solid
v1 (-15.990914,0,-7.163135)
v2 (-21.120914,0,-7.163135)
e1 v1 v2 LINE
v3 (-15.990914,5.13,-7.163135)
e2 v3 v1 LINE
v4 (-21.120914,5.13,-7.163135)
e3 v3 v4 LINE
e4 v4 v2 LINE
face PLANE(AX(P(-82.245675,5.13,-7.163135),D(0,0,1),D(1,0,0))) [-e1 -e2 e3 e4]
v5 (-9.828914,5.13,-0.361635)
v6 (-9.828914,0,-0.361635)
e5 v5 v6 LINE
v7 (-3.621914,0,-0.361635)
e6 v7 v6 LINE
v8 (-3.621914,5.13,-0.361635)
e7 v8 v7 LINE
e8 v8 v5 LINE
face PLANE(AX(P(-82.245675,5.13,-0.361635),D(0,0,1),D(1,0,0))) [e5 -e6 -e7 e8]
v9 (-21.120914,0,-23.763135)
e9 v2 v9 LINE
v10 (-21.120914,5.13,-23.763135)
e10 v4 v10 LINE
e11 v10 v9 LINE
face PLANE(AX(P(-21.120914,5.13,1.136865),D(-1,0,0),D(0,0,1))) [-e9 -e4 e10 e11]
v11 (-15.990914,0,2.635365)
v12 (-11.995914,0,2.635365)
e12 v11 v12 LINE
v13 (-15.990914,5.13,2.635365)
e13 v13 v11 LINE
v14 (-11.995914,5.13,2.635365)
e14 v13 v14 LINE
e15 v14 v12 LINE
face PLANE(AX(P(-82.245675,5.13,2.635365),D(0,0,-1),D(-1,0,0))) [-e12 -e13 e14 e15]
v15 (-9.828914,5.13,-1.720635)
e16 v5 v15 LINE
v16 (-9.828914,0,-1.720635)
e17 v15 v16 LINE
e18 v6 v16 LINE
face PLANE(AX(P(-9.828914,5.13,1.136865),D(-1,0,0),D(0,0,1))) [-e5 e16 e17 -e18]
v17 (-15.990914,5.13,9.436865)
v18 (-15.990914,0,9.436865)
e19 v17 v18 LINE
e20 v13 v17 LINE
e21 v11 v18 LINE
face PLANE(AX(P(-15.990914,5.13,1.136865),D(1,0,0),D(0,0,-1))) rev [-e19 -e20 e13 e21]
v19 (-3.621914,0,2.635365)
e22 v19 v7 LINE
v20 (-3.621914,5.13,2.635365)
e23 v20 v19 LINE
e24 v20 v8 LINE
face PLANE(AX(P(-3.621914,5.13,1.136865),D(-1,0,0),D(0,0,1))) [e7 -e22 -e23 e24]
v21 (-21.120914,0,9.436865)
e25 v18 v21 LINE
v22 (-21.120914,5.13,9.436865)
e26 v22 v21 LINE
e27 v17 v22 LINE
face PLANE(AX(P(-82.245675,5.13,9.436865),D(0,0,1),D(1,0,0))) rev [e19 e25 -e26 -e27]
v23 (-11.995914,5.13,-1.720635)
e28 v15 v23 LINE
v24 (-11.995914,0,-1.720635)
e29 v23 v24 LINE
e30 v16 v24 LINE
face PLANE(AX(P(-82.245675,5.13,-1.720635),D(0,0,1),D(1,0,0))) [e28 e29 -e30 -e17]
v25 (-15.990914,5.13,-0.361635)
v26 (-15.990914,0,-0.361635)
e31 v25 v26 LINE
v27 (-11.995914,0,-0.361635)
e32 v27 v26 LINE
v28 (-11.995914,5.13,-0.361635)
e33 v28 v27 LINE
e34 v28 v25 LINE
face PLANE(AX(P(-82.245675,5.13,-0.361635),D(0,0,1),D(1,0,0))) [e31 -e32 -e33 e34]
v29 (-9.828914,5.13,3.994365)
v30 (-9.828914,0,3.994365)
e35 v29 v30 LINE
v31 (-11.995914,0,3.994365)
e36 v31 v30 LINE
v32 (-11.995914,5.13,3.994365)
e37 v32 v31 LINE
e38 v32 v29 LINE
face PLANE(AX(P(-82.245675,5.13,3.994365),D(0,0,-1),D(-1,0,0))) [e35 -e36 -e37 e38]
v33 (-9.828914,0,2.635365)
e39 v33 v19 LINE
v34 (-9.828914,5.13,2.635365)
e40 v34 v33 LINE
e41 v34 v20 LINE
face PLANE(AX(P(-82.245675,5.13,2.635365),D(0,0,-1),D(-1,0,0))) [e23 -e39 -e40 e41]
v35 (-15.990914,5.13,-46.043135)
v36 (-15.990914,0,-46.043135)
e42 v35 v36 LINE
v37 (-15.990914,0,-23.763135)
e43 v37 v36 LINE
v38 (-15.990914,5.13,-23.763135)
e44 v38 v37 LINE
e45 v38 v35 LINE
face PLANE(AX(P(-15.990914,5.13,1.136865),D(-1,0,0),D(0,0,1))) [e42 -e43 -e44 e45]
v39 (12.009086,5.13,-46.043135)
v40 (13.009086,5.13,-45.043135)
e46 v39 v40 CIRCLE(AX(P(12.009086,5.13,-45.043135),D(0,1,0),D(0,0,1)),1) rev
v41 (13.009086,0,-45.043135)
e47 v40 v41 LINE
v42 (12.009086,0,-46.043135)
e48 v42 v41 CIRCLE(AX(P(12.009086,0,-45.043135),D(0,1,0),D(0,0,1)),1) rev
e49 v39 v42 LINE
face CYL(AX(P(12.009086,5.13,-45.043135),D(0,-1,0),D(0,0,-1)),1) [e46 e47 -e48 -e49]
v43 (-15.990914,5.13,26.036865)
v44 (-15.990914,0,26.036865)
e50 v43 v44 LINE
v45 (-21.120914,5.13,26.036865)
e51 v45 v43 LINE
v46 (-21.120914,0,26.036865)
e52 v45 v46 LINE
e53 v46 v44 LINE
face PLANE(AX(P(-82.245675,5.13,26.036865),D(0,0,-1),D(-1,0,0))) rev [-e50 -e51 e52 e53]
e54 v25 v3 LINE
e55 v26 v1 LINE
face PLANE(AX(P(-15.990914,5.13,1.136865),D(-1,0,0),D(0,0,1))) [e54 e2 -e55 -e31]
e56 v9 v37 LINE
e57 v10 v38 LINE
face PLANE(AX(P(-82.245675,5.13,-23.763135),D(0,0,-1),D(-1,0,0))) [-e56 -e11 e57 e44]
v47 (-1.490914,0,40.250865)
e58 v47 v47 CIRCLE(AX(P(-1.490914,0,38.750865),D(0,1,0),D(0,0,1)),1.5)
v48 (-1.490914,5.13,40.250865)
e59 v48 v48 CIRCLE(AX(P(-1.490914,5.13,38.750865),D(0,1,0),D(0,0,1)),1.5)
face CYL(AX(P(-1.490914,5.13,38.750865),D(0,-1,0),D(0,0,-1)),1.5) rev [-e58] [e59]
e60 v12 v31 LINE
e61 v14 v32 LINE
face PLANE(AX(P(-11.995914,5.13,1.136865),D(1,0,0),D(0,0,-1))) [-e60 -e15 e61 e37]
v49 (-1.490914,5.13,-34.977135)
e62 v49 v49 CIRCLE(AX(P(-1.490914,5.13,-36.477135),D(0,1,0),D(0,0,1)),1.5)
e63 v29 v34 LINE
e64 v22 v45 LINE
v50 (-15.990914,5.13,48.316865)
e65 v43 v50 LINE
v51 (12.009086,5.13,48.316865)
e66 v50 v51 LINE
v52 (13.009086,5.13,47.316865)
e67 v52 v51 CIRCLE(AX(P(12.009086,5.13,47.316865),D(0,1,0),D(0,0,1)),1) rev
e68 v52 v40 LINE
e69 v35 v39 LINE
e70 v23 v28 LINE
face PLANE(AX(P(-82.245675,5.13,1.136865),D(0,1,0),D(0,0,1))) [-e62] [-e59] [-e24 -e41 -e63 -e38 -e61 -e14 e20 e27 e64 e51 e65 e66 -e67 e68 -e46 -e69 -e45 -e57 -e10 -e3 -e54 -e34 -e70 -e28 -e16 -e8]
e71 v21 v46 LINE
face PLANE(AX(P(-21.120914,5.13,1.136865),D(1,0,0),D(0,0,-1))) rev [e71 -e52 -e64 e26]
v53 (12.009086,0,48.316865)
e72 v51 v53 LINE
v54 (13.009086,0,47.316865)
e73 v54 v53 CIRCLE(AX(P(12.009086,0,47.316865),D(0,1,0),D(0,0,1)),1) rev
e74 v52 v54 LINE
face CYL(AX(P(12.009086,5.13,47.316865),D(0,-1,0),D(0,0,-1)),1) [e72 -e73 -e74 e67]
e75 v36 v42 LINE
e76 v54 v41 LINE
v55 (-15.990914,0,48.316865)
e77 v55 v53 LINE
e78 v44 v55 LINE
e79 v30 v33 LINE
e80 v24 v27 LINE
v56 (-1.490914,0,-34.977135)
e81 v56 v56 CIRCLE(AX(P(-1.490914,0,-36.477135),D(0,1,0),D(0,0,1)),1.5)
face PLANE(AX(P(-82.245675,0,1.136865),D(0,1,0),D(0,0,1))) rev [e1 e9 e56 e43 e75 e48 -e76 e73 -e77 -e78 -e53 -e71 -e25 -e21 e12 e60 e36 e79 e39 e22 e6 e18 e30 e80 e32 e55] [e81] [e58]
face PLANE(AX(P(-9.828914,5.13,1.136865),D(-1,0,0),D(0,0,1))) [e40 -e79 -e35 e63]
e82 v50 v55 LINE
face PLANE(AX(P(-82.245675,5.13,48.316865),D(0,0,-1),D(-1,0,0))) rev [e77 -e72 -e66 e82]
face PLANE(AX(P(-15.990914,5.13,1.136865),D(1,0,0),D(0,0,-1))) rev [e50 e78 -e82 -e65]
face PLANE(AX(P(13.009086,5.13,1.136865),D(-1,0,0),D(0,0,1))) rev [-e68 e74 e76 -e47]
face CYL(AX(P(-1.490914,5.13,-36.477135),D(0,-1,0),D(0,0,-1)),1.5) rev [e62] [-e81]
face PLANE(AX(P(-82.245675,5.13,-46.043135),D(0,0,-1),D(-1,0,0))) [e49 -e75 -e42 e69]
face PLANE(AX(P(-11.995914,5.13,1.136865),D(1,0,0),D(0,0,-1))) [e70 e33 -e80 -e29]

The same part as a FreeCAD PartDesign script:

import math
import FreeCAD as App
import Part
import Sketcher

doc = App.newDocument("Part")
body = doc.addObject("PartDesign::Body", "Body")

sketch1 = doc.addObject("Sketcher::SketchObject", "Sketch")
body.addObject(sketch1)
sketch1.AttachmentSupport = (doc.XZ_Plane, [""])
sketch1.MapMode = "FlatFace"
sketch1.addGeometry([
    Part.LineSegment(App.Vector(-16, 2.6, 0), App.Vector(-16, 9.4, 0)),
    Part.LineSegment(App.Vector(-16, 9.4, 0), App.Vector(-21.1, 9.4, 0)),
    Part.LineSegment(App.Vector(-21.1, 9.4, 0), App.Vector(-21.1, 26, 0)),
    Part.LineSegment(App.Vector(-21.1, 26, 0), App.Vector(-16, 26, 0)),
    Part.LineSegment(App.Vector(-16, 26, 0), App.Vector(-16, 48.3, 0)),
    Part.LineSegment(App.Vector(-16, 48.3, 0), App.Vector(12, 48.3, 0)),
    Part.ArcOfCircle(Part.Circle(App.Vector(12, 47.3, 0), App.Vector(0, 0, 1), 1), math.radians(0), math.radians(90)),
    Part.LineSegment(App.Vector(13, 47.3, 0), App.Vector(13, -45, 0)),
    Part.ArcOfCircle(Part.Circle(App.Vector(12, -45, 0), App.Vector(0, 0, 1), 1), math.radians(-90), math.radians(0)),
    Part.LineSegment(App.Vector(12, -46, 0), App.Vector(-16, -46, 0)),
    Part.LineSegment(App.Vector(-16, -46, 0), App.Vector(-16, -23.8, 0)),
    Part.LineSegment(App.Vector(-16, -23.8, 0), App.Vector(-21.1, -23.8, 0)),
    Part.LineSegment(App.Vector(-21.1, -23.8, 0), App.Vector(-21.1, -7.2, 0)),
    Part.LineSegment(App.Vector(-21.1, -7.2, 0), App.Vector(-16, -7.2, 0)),
    Part.LineSegment(App.Vector(-16, -7.2, 0), App.Vector(-16, -0.4, 0)),
    Part.LineSegment(App.Vector(-16, -0.4, 0), App.Vector(-12, -0.4, 0)),
    Part.LineSegment(App.Vector(-12, -0.4, 0), App.Vector(-12, -1.7, 0)),
    Part.LineSegment(App.Vector(-12, -1.7, 0), App.Vector(-9.8, -1.7, 0)),
    Part.LineSegment(App.Vector(-9.8, -1.7, 0), App.Vector(-9.8, -0.4, 0)),
    Part.LineSegment(App.Vector(-9.8, -0.4, 0), App.Vector(-3.6, -0.4, 0)),
    Part.LineSegment(App.Vector(-3.6, -0.4, 0), App.Vector(-3.6, 2.6, 0)),
    Part.LineSegment(App.Vector(-3.6, 2.6, 0), App.Vector(-9.8, 2.6, 0)),
    Part.LineSegment(App.Vector(-9.8, 2.6, 0), App.Vector(-9.8, 4, 0)),
    Part.LineSegment(App.Vector(-9.8, 4, 0), App.Vector(-12, 4, 0)),
    Part.LineSegment(App.Vector(-12, 4, 0), App.Vector(-12, 2.6, 0)),
    Part.LineSegment(App.Vector(-12, 2.6, 0), App.Vector(-16, 2.6, 0)),
    Part.Circle(App.Vector(-1.5, 38.8, 0), App.Vector(0, 0, 1), 1.5),
    Part.Circle(App.Vector(-1.5, -36.5, 0), App.Vector(0, 0, 1), 1.5),
], False)
sketch1.addConstraint([
    Sketcher.Constraint("Coincident", 0, 2, 1, 1),
    Sketcher.Constraint("Coincident", 1, 2, 2, 1),
    Sketcher.Constraint("Coincident", 2, 2, 3, 1),
    Sketcher.Constraint("Coincident", 3, 2, 4, 1),
    Sketcher.Constraint("Coincident", 4, 2, 5, 1),
    Sketcher.Constraint("Tangent", 5, 2, 6, 2),
    Sketcher.Constraint("Tangent", 6, 1, 7, 1),
    Sketcher.Constraint("Tangent", 7, 2, 8, 2),
    Sketcher.Constraint("Tangent", 8, 1, 9, 1),
    Sketcher.Constraint("Coincident", 9, 2, 10, 1),
    Sketcher.Constraint("Coincident", 10, 2, 11, 1),
    Sketcher.Constraint("Coincident", 11, 2, 12, 1),
    Sketcher.Constraint("Coincident", 12, 2, 13, 1),
    Sketcher.Constraint("Coincident", 13, 2, 14, 1),
    Sketcher.Constraint("Coincident", 14, 2, 15, 1),
    Sketcher.Constraint("Coincident", 15, 2, 16, 1),
    Sketcher.Constraint("Coincident", 16, 2, 17, 1),
    Sketcher.Constraint("Coincident", 17, 2, 18, 1),
    Sketcher.Constraint("Coincident", 18, 2, 19, 1),
    Sketcher.Constraint("Coincident", 19, 2, 20, 1),
    Sketcher.Constraint("Coincident", 20, 2, 21, 1),
    Sketcher.Constraint("Coincident", 21, 2, 22, 1),
    Sketcher.Constraint("Coincident", 22, 2, 23, 1),
    Sketcher.Constraint("Coincident", 23, 2, 24, 1),
    Sketcher.Constraint("Coincident", 24, 2, 25, 1),
    Sketcher.Constraint("Coincident", 25, 2, 0, 1),
    Sketcher.Constraint("Vertical", 0),
    Sketcher.Constraint("Horizontal", 1),
    Sketcher.Constraint("Vertical", 2),
    Sketcher.Constraint("Horizontal", 3),
    Sketcher.Constraint("Vertical", 4),
    Sketcher.Constraint("Horizontal", 5),
    Sketcher.Constraint("Vertical", 7),
    Sketcher.Constraint("Horizontal", 9),
    Sketcher.Constraint("Vertical", 10),
    Sketcher.Constraint("Horizontal", 11),
    Sketcher.Constraint("Vertical", 12),
    Sketcher.Constraint("Horizontal", 13),
    Sketcher.Constraint("Vertical", 14),
    Sketcher.Constraint("Horizontal", 15),
    Sketcher.Constraint("Vertical", 16),
    Sketcher.Constraint("Horizontal", 17),
    Sketcher.Constraint("Vertical", 18),
    Sketcher.Constraint("Horizontal", 19),
    Sketcher.Constraint("Vertical", 20),
    Sketcher.Constraint("Horizontal", 21),
    Sketcher.Constraint("Vertical", 22),
    Sketcher.Constraint("Horizontal", 23),
    Sketcher.Constraint("Vertical", 24),
    Sketcher.Constraint("Horizontal", 25),
    Sketcher.Constraint("Equal", 6, 8),
    Sketcher.Constraint("Equal", 26, 27),
    Sketcher.Constraint("Horizontal", 15, 2, 18, 2),
    Sketcher.Constraint("Horizontal", 21, 2, 24, 2),
    Sketcher.Constraint("Vertical", 26, 3, 27, 3),
    Sketcher.Constraint("Vertical", 0, 2, 3, 2),
    Sketcher.Constraint("Vertical", 4, 2, 9, 2),
    Sketcher.Constraint("Vertical", 2, 2, 11, 2),
    Sketcher.Constraint("Vertical", 10, 2, 13, 2),
    Sketcher.Constraint("Vertical", 18, 2, 21, 2),
    Sketcher.Constraint("Vertical", 16, 2, 23, 2),
    Sketcher.Constraint("Equal", 4, 10),
    Sketcher.Constraint("Equal", 2, 12),
    Sketcher.Constraint("Equal", 0, 14),
    Sketcher.Constraint("Equal", 18, 22),
    Sketcher.Constraint("Diameter", 26, 3.0),
    Sketcher.Constraint("Radius", 6, 1.0),
    Sketcher.Constraint("DistanceX", 5, 1, 5, 2, 28.0),
    Sketcher.Constraint("DistanceY", 2, 1, 2, 2, 16.6),
    Sketcher.Constraint("DistanceX", 1, 2, 1, 1, 5.13),
    Sketcher.Constraint("DistanceY", 4, 1, 4, 2, 22.28),
    Sketcher.Constraint("DistanceY", 7, 2, 7, 1, 92.36),
    Sketcher.Constraint("DistanceX", 26, 3, 6, 3, 13.5),
    Sketcher.Constraint("DistanceX", 15, 1, 15, 2, 3.995),
    Sketcher.Constraint("DistanceX", 17, 1, 17, 2, 2.167),
    Sketcher.Constraint("DistanceX", 19, 1, 19, 2, 6.207),
    Sketcher.Constraint("DistanceY", 16, 2, 16, 1, 1.359),
    Sketcher.Constraint("DistanceY", 20, 1, 20, 2, 2.997),
    Sketcher.Constraint("DistanceY", 26, 3, 6, 3, 8.566),
    Sketcher.Constraint("DistanceY", 8, 3, 27, 3, 8.566),
    Sketcher.Constraint("DistanceX", -1, 1, 6, 3, 12.009086),
    Sketcher.Constraint("DistanceY", -1, 1, 6, 3, 47.316865),
])
pad1 = doc.addObject("PartDesign::Pad", "Pad")
body.addObject(pad1)
pad1.Profile = sketch1
pad1.Length = 5.13
pad1.Reversed = True

doc.recompute()
